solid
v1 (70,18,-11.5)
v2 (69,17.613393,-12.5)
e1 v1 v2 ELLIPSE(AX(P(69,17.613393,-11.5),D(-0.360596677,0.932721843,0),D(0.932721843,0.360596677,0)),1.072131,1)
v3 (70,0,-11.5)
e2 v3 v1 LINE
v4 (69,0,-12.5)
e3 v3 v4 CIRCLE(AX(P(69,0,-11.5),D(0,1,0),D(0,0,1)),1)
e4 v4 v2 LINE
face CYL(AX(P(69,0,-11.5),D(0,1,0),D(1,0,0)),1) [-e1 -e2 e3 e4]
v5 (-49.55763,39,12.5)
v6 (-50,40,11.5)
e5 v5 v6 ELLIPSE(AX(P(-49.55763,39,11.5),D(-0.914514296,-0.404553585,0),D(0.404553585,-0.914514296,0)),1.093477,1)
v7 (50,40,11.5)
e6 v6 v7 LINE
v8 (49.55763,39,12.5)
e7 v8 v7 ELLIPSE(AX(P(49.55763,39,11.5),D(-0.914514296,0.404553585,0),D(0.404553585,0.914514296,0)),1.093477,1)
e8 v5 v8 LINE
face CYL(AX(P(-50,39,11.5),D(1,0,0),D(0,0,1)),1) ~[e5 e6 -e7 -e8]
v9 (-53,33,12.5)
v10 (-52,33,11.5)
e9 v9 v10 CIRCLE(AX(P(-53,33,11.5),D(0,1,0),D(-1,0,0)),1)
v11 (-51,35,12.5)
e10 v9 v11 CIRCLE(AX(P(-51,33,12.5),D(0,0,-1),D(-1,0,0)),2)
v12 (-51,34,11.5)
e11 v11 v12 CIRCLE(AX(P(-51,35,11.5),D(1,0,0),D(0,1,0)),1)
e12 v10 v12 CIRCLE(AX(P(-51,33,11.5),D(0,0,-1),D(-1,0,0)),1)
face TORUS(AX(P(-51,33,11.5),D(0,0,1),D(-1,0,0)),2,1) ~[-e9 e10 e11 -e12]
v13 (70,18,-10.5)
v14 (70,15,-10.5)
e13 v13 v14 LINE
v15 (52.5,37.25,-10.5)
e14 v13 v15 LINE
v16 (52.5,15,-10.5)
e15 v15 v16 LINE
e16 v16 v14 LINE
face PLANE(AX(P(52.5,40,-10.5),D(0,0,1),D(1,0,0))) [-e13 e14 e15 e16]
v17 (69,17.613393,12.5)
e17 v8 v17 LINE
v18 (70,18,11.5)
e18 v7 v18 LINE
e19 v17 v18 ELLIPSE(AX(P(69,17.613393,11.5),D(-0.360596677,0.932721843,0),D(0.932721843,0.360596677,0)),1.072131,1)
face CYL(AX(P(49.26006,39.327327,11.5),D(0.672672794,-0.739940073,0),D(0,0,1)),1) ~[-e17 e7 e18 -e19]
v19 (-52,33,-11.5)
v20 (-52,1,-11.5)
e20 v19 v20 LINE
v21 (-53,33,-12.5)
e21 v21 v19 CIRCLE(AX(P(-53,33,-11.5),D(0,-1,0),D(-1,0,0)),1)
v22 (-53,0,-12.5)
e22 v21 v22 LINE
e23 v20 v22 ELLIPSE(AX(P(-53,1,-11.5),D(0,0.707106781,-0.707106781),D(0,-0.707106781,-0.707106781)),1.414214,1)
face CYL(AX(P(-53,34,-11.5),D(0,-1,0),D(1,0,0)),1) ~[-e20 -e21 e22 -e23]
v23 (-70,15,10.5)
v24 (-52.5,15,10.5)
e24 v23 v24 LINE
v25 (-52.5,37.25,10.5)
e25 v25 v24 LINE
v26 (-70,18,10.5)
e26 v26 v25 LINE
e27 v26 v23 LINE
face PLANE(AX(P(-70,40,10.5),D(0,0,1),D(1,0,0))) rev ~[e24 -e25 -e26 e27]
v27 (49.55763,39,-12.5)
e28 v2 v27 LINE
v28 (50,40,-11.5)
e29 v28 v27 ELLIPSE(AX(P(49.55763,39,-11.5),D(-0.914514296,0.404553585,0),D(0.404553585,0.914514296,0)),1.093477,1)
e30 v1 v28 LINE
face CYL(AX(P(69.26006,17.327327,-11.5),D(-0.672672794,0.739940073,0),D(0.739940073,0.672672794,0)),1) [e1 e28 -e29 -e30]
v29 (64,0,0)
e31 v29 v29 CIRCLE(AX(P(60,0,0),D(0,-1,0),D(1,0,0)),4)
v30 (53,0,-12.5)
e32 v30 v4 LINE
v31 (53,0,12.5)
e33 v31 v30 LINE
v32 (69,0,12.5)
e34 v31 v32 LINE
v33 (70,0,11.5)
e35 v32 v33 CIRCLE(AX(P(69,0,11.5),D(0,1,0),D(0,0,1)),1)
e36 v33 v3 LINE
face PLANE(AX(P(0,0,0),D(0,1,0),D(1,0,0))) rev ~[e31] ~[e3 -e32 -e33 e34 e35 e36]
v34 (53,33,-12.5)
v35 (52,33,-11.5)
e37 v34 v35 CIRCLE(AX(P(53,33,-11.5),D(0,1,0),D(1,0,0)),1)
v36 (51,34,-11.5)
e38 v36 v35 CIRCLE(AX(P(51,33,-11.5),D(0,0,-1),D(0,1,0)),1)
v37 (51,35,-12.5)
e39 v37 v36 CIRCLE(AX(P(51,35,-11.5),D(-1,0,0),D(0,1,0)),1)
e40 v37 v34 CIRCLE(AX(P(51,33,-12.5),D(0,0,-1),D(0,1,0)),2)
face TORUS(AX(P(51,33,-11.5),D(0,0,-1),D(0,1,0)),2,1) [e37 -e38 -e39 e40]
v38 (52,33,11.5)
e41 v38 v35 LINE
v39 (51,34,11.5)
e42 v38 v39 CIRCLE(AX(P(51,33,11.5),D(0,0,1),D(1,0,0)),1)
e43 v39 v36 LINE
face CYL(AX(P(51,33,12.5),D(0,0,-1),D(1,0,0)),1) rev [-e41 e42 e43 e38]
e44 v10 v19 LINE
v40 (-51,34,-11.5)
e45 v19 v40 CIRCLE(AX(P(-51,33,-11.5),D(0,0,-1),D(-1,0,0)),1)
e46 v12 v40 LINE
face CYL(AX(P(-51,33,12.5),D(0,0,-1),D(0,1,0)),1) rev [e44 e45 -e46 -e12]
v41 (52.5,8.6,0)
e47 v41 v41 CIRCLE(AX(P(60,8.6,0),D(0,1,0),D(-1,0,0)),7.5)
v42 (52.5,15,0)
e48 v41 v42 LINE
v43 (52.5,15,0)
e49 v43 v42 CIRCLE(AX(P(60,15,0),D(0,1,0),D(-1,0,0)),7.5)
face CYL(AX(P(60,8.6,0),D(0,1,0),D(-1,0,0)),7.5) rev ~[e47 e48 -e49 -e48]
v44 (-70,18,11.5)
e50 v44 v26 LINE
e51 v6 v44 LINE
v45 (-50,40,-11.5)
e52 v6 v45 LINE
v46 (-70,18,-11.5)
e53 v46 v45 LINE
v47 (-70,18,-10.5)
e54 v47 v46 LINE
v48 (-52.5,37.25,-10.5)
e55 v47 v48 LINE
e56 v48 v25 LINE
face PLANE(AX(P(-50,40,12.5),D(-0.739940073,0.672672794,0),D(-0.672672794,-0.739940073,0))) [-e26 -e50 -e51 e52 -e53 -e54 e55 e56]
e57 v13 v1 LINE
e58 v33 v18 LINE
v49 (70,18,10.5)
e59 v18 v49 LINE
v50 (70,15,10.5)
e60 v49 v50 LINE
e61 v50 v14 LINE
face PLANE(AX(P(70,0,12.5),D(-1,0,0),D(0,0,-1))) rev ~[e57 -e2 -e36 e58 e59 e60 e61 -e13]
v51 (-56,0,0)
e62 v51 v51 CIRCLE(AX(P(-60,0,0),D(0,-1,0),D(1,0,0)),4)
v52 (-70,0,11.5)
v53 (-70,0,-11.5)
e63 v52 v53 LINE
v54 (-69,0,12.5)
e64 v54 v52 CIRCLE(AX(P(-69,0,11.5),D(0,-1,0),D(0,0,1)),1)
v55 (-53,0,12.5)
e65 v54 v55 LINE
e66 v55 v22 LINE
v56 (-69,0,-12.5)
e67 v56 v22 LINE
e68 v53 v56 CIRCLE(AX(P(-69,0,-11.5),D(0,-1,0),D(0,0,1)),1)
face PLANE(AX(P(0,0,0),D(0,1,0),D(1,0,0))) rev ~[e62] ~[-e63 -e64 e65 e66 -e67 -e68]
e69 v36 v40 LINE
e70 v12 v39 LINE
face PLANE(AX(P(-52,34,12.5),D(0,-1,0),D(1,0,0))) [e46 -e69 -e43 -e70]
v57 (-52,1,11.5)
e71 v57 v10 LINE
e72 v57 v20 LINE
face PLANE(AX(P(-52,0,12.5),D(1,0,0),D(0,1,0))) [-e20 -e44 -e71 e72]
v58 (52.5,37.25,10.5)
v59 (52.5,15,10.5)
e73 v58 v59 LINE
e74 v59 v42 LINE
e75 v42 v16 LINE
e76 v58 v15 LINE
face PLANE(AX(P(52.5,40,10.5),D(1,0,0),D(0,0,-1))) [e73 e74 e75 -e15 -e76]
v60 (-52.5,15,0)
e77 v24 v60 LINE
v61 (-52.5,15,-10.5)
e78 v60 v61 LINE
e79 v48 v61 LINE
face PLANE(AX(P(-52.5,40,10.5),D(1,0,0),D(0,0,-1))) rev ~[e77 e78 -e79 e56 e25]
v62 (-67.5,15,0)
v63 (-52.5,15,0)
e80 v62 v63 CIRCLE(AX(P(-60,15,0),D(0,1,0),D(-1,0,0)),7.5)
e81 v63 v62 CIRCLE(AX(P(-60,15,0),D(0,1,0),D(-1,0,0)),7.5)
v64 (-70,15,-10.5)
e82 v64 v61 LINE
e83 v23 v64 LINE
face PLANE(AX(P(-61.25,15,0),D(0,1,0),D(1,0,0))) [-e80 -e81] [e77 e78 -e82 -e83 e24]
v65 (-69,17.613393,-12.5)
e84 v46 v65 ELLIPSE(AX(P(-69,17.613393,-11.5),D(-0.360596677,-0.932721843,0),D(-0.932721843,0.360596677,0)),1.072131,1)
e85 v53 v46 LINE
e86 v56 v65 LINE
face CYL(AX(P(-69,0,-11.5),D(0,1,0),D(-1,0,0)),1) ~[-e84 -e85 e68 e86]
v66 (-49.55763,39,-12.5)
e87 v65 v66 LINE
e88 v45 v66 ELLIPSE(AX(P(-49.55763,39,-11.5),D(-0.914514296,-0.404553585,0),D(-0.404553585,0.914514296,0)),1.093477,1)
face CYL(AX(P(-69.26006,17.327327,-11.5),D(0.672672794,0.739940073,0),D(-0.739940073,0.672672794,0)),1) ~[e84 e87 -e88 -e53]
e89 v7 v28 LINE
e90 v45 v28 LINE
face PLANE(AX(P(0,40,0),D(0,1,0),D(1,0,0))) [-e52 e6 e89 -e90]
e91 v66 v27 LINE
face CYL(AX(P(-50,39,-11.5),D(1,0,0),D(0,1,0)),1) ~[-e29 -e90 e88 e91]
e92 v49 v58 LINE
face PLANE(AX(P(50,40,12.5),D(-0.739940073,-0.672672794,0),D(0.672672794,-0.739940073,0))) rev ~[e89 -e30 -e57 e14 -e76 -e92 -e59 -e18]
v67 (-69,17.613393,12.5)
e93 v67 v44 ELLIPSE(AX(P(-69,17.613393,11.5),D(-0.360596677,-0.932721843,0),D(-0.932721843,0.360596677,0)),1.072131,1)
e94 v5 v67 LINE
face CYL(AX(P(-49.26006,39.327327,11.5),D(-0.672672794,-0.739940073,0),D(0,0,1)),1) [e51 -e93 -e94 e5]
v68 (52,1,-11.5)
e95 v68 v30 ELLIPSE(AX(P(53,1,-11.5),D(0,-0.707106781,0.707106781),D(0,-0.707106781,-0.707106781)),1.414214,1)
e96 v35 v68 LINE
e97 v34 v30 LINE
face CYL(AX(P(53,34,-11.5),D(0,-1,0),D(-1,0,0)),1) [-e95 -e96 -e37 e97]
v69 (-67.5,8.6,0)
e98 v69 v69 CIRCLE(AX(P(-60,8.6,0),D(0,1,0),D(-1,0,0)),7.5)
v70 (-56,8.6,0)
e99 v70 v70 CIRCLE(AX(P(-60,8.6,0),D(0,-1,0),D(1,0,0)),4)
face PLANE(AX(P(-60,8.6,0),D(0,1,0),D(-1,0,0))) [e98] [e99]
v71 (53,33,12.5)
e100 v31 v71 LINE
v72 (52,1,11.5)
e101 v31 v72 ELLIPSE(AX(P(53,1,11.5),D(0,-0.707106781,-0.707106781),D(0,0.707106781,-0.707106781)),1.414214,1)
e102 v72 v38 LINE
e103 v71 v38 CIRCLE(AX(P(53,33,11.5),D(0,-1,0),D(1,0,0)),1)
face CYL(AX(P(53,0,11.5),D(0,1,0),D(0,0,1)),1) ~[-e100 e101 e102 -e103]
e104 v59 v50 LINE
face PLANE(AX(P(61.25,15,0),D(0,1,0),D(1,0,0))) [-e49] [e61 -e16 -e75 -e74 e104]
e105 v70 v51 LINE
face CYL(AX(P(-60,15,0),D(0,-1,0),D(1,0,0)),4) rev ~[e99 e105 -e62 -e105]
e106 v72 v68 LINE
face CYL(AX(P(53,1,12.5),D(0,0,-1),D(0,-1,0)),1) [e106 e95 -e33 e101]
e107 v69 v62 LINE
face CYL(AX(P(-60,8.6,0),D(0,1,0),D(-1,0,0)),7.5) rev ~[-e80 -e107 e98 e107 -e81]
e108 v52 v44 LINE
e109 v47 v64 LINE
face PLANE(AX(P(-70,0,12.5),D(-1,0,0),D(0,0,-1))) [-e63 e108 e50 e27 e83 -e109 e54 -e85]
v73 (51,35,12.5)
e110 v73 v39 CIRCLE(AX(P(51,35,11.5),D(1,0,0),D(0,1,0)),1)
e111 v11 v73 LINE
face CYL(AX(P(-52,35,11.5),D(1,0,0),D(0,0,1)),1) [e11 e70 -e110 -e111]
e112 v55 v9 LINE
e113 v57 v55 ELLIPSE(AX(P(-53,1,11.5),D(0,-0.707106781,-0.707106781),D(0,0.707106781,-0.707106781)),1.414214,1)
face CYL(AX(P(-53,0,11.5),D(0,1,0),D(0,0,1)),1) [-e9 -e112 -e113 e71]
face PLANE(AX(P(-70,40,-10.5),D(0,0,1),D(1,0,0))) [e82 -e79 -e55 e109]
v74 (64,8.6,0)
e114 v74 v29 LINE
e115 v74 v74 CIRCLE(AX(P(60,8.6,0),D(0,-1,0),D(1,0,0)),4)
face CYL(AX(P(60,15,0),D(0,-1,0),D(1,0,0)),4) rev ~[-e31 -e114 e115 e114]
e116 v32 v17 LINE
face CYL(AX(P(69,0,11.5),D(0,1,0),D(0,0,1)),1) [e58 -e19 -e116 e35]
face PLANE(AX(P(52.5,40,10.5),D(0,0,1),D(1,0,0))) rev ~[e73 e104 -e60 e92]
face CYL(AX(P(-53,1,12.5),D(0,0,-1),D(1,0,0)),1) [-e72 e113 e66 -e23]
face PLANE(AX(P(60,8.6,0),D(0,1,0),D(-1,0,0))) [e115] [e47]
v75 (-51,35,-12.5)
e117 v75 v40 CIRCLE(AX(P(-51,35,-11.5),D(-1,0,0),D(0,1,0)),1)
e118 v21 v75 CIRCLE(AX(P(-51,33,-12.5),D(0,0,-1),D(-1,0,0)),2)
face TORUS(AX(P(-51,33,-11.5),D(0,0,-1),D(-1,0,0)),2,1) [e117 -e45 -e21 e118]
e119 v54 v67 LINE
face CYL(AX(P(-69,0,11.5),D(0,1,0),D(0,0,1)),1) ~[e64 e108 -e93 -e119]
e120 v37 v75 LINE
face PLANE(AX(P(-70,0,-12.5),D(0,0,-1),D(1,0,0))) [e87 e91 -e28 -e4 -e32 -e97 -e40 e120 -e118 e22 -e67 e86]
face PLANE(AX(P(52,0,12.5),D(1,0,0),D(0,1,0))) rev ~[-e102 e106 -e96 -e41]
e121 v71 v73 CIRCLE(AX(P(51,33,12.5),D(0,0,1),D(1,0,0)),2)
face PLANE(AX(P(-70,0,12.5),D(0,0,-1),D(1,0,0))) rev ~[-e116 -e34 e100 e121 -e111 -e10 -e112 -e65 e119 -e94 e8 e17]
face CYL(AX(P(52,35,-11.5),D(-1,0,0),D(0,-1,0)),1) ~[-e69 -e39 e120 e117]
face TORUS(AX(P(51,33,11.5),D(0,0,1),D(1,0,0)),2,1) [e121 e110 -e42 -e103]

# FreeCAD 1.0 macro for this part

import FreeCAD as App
import Part
import Sketcher

V = App.Vector
Q = App.Units.Quantity


def edges_at(feature, points):
    """Names of the edges that pass closest to the given points."""
    edges = feature.Shape.Edges
    near = lambda p: min(range(len(edges)), key=lambda i: edges[i].distToShape(Part.Vertex(*p))[0])
    return sorted({f"Edge{near(p) + 1}" for p in points})


def add_polygon(sketch, points):
    """Adds a closed chain of lines whose ends are joined by coincident constraints."""
    first, n = sketch.GeometryCount, len(points)
    for a, b in zip(points, points[1:] + points[:1]):
        sketch.addGeometry(Part.LineSegment(App.Vector(*a, 0), App.Vector(*b, 0)), False)
    for i in range(n):
        sketch.addConstraint(Sketcher.Constraint("Coincident", first + i, 2, first + (i + 1) % n, 1))

doc = App.newDocument("Part")
body = doc.addObject("PartDesign::Body", "Body")

# Sketch on XZ plane
sketch1 = body.newObject("Sketcher::SketchObject", "Sketch")
sketch1.AttachmentSupport = (doc.getObject("XZ_Plane"), [""])
sketch1.MapMode = "FlatFace"
add_polygon(sketch1, [(-70, -12), (-70, 12), (70, 12), (70, -12)])  # lines 0-3
sketch1.addConstraint(Sketcher.Constraint("Vertical", 0))
sketch1.addConstraint(Sketcher.Constraint("Horizontal", 1))
sketch1.addConstraint(Sketcher.Constraint("Vertical", 2))
sketch1.addConstraint(Sketcher.Constraint("Horizontal", 3))
sketch1.addConstraint(Sketcher.Constraint("Symmetric", 0, 2, 2, 2, -1, 1))
sketch1.addConstraint(Sketcher.Constraint("DistanceX", 1, 1, 1, 2, Q("140 mm")))
sketch1.addConstraint(Sketcher.Constraint("DistanceY", 0, 1, 0, 2, Q("25 mm")))
pad1 = body.newObject("PartDesign::Pad", "Pad")
pad1.Profile = sketch1
pad1.Length = 40
pad1.Reversed = True

# Sketch on XY plane
sketch2 = body.newObject("Sketcher::SketchObject", "Sketch001")
sketch2.AttachmentSupport = (doc.getObject("XY_Plane"), [""])
sketch2.MapMode = "FlatFace"
sketch2.AttachmentOffset = App.Placement(V(0, 0, 12.5), App.Rotation())
add_polygon(sketch2, [(-52, 34), (-52, 0), (52, 0), (52, 34)])  # lines 0-3
add_polygon(sketch2, [(-50, 40), (-70, 40), (-70, 18)])  # lines 4-6
add_polygon(sketch2, [(70, 40), (50, 40), (70, 18)])  # lines 7-9
sketch2.addConstraint(Sketcher.Constraint("Vertical", 0))
sketch2.addConstraint(Sketcher.Constraint("Horizontal", 1))
sketch2.addConstraint(Sketcher.Constraint("Vertical", 2))
sketch2.addConstraint(Sketcher.Constraint("Horizontal", 3))
sketch2.addConstraint(Sketcher.Constraint("Horizontal", 4))
sketch2.addConstraint(Sketcher.Constraint("Vertical", 5))
sketch2.addConstraint(Sketcher.Constraint("Horizontal", 7))
sketch2.addConstraint(Sketcher.Constraint("Vertical", 9))
sketch2.addConstraint(Sketcher.Constraint("Symmetric", 0, 2, 1, 2, -1, 1))
sketch2.addConstraint(Sketcher.Constraint("Symmetric", 6, 2, 7, 2, -2))
sketch2.addConstraint(Sketcher.Constraint("Symmetric", 5, 2, 8, 2, -2))
sketch2.addConstraint(Sketcher.Constraint("DistanceX", 1, 1, 1, 2, Q("104 mm")))
sketch2.addConstraint(Sketcher.Constraint("DistanceX", 4, 2, 4, 1, Q("20 mm")))
sketch2.addConstraint(Sketcher.Constraint("DistanceY", 0, 2, 0, 1, Q("34 mm")))
sketch2.addConstraint(Sketcher.Constraint("DistanceY", 5, 2, 5, 1, Q("22 mm")))
sketch2.addConstraint(Sketcher.Constraint("DistanceX", 4, 2, -1, 1, Q("70 mm")))
sketch2.addConstraint(Sketcher.Constraint("DistanceY", -1, 1, 4, 2, Q("40 mm")))
pocket1 = body.newObject("PartDesign::Pocket", "Pocket")
pocket1.Profile = sketch2
pocket1.Type = "ThroughAll"

# Sketch on XZ plane
sketch3 = body.newObject("Sketcher::SketchObject", "Sketch002")
sketch3.AttachmentSupport = (doc.getObject("XZ_Plane"), [""])
sketch3.MapMode = "FlatFace"
sketch3.AttachmentOffset = App.Placement(V(0, 0, -40), App.Rotation())
add_polygon(sketch3, [(-70, -10), (-70, 10), (-52, 10), (-52, -10)])  # lines 0-3
add_polygon(sketch3, [(52, -10), (52, 10), (70, 10), (70, -10)])  # lines 4-7
sketch3.addConstraint(Sketcher.Constraint("Vertical", 0))
sketch3.addConstraint(Sketcher.Constraint("Horizontal", 1))
sketch3.addConstraint(Sketcher.Constraint("Vertical", 2))
sketch3.addConstraint(Sketcher.Constraint("Horizontal", 3))
sketch3.addConstraint(Sketcher.Constraint("Vertical", 4))
sketch3.addConstraint(Sketcher.Constraint("Horizontal", 5))
sketch3.addConstraint(Sketcher.Constraint("Vertical", 6))
sketch3.addConstraint(Sketcher.Constraint("Horizontal", 7))
sketch3.addConstraint(Sketcher.Constraint("Symmetric", 2, 2, 4, 2, -1, 1))
sketch3.addConstraint(Sketcher.Constraint("Symmetric", 0, 2, 6, 2, -1, 1))
sketch3.addConstraint(Sketcher.Constraint("Horizontal", 1, 2, 4, 2))
sketch3.addConstraint(Sketcher.Constraint("DistanceY", 0, 1, 0, 2, Q("21 mm")))
sketch3.addConstraint(Sketcher.Constraint("DistanceX", 1, 1, 1, 2, Q("17.5 mm")))
sketch3.addConstraint(Sketcher.Constraint("DistanceX", 0, 2, -1, 1, Q("70 mm")))
pocket2 = body.newObject("PartDesign::Pocket", "Pocket001")
pocket2.Profile = sketch3
pocket2.Length = 25
pocket2.Reversed = True

# Sketch on XZ plane
sketch4 = body.newObject("Sketcher::SketchObject", "Sketch003")
sketch4.AttachmentSupport = (doc.getObject("XZ_Plane"), [""])
sketch4.MapMode = "FlatFace"
sketch4.AttachmentOffset = App.Placement(V(0, 0, -15), App.Rotation())
sketch4.addGeometry(Part.Circle(V(-60, 0, 0), V(0, 0, 1), 4), False)
sketch4.addGeometry(Part.Circle(V(60, 0, 0), V(0, 0, 1), 4), False)
sketch4.addConstraint(Sketcher.Constraint("Equal", 0, 1))
sketch4.addConstraint(Sketcher.Constraint("Symmetric", 0, 3, 1, 3, -1, 1))
sketch4.addConstraint(Sketcher.Constraint("PointOnObject", 0, 3, -1))
sketch4.addConstraint(Sketcher.Constraint("Diameter", 0, Q("8 mm")))
sketch4.addConstraint(Sketcher.Constraint("DistanceX", 0, 3, -1, 1, Q("60 mm")))
doc.recompute()
hole = body.newObject("PartDesign::Hole", "Hole")
hole.Profile = sketch4
hole.ThreadType = "None"
hole.Diameter = 8
hole.DepthType = "ThroughAll"
hole.HoleCutType = "Counterbore"
hole.HoleCutDiameter = 15
hole.HoleCutDepth = 6.4
hole.Reversed = True
doc.recompute()

fillet = body.newObject("PartDesign::Fillet", "Fillet")
fillet.Base = (hole, edges_at(hole, [
    (-52, 17, -12.5),
    (-52, 0, 0),
    (0, 34, -12.5),
    (-52, 34, 0),
    (52, 17, -12.5),
    (52, 34, 0),
    (52, 0, 0),
    (-52, 17, 12.5),
    (52, 17, 12.5),
    (0, 34, 12.5),
]))
fillet.Radius = 1
doc.recompute()

fillet2 = body.newObject("PartDesign::Fillet", "Fillet001")
fillet2.Base = (fillet, edges_at(fillet, [
    (0, 40, 12.5),
    (-70, 9, -12.5),
    (-70, 9, 12.5),
    (-60, 29, -12.5),
    (-60, 29, 12.5),
    (0, 40, -12.5),
    (70, 9, -12.5),
    (70, 9, 12.5),
    (60, 29, -12.5),
    (60, 29, 12.5),
]))
fillet2.Radius = 1

doc.recompute()
